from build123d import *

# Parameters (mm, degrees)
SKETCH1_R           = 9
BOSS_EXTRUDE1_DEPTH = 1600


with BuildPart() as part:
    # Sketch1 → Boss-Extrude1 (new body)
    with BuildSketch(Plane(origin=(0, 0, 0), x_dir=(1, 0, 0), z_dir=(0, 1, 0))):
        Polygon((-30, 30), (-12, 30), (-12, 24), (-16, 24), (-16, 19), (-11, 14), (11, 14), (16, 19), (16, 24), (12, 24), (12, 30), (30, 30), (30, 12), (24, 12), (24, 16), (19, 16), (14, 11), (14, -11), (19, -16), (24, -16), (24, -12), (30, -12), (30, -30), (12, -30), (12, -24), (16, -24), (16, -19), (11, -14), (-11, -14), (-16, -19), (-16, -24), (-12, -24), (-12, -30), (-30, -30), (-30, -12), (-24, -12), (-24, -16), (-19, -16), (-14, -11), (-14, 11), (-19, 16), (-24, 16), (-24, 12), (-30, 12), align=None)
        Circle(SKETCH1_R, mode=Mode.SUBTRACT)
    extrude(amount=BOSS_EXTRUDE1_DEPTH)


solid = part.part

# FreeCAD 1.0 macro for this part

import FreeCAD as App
import Part
import Sketcher

V = App.Vector
Q = App.Units.Quantity


def add_polygon(sketch, points):
    """Adds a closed chain of lines whose ends are joined by coincident constraints."""
    first, n = sketch.GeometryCount, len(points)
    for a, b in zip(points, points[1:] + points[:1]):
        sketch.addGeometry(Part.LineSegment(App.Vector(*a, 0), App.Vector(*b, 0)), False)
    for i in range(n):
        sketch.addConstraint(Sketcher.Constraint("Coincident", first + i, 2, first + (i + 1) % n, 1))

doc = App.newDocument("Part")
body = doc.addObject("PartDesign::Body", "Body")

sketch1 = doc.addObject("Sketcher::SketchObject", "Sketch")
body.addObject(sketch1)
sketch1.AttachmentSupport = (doc.XZ_Plane, [""])
sketch1.MapMode = "FlatFace"
add_polygon(sketch1, [(-12, -30), (-30, -30), (-30, -12), (-24, -12), (-24, -16), (-19, -16), (-14, -11), (-14, 11), (-19, 16), (-24, 16), (-24, 12), (-30, 12), (-30, 30), (-12, 30), (-12, 24), (-16, 24), (-16, 19), (-11, 14), (11, 14), (16, 19), (16, 24), (12, 24), (12, 30), (30, 30), (30, 12), (24, 12), (24, 16), (19, 16), (14, 11), (14, -11), (19, -16), (24, -16), (24, -12), (30, -12), (30, -30), (12, -30), (12, -24), (16, -24), (16, -19), (11, -14), (-11, -14), (-16, -19), (-16, -24), (-12, -24)])
sketch1.addGeometry(Part.Circle(V(0, 0, 0), V(0, 0, 1), 9), False)
sketch1.addConstraint([
    Sketcher.Constraint("Horizontal", 0),
    Sketcher.Constraint("Vertical", 1),
    Sketcher.Constraint("Horizontal", 2),
    Sketcher.Constraint("Vertical", 3),
    Sketcher.Constraint("Horizontal", 4),
    Sketcher.Constraint("Vertical", 6),
    Sketcher.Constraint("Horizontal", 8),
    Sketcher.Constraint("Vertical", 9),
    Sketcher.Constraint("Horizontal", 10),
    Sketcher.Constraint("Vertical", 11),
    Sketcher.Constraint("Horizontal", 12),
    Sketcher.Constraint("Vertical", 13),
    Sketcher.Constraint("Horizontal", 14),
    Sketcher.Constraint("Vertical", 15),
    Sketcher.Constraint("Horizontal", 17),
    Sketcher.Constraint("Vertical", 19),
    Sketcher.Constraint("Horizontal", 20),
    Sketcher.Constraint("Vertical", 21),
    Sketcher.Constraint("Horizontal", 22),
    Sketcher.Constraint("Vertical", 23),
    Sketcher.Constraint("Horizontal", 24),
    Sketcher.Constraint("Vertical", 25),
    Sketcher.Constraint("Horizontal", 26),
    Sketcher.Constraint("Vertical", 28),
    Sketcher.Constraint("Horizontal", 30),
    Sketcher.Constraint("Vertical", 31),
    Sketcher.Constraint("Horizontal", 32),
    Sketcher.Constraint("Vertical", 33),
    Sketcher.Constraint("Horizontal", 34),
    Sketcher.Constraint("Vertical", 35),
    Sketcher.Constraint("Horizontal", 36),
    Sketcher.Constraint("Vertical", 37),
    Sketcher.Constraint("Horizontal", 39),
    Sketcher.Constraint("Vertical", 41),
    Sketcher.Constraint("Horizontal", 42),
    Sketcher.Constraint("Vertical", 43),
    Sketcher.Constraint("Coincident", 44, 3, -1, 1),
    Sketcher.Constraint("Symmetric", 0, 2, 22, 2, -1, 1),
    Sketcher.Constraint("Symmetric", 2, 2, 24, 2, -1, 1),
    Sketcher.Constraint("Symmetric", 4, 2, 26, 2, -1, 1),
    Sketcher.Constraint("Symmetric", 5, 2, 27, 2, -1, 1),
    Sketcher.Constraint("Symmetric", 7, 2, 29, 2, -1, 1),
    Sketcher.Constraint("Symmetric", 9, 2, 31, 2, -1, 1),
    Sketcher.Constraint("Symmetric", 11, 2, 33, 2, -1, 1),
    Sketcher.Constraint("Symmetric", 13, 2, 35, 2, -1, 1),
    Sketcher.Constraint("Symmetric", 15, 2, 37, 2, -1, 1),
    Sketcher.Constraint("Symmetric", 16, 2, 38, 2, -1, 1),
    Sketcher.Constraint("Symmetric", 18, 2, 40, 2, -1, 1),
    Sketcher.Constraint("Symmetric", 20, 2, 42, 2, -1, 1),
    Sketcher.Constraint("Symmetric", 15, 2, 18, 2, -2),
    Sketcher.Constraint("Symmetric", 13, 2, 20, 2, -2),
    Sketcher.Constraint("Symmetric", 11, 2, 22, 2, -2),
    Sketcher.Constraint("Symmetric", 9, 2, 24, 2, -2),
    Sketcher.Constraint("Symmetric", 7, 2, 26, 2, -2),
    Sketcher.Constraint("Perpendicular", 5, 7),
    Sketcher.Constraint("Parallel", 7, 16),
    Sketcher.Constraint("Perpendicular", 16, 18),
    Sketcher.Constraint("Perpendicular", 27, 29),
    Sketcher.Constraint("Perpendicular", 38, 40),
    Sketcher.Constraint("Horizontal", 6, 2, 27, 2),
    Sketcher.Constraint("Equal", 34, 1),
    Sketcher.Constraint("Equal", 42, 3),
    Sketcher.Constraint("Equal", 39, 6),
    Sketcher.Constraint("Equal", 32, 13),
    Sketcher.Constraint("Equal", 30, 15),
    Sketcher.Constraint("Equal", 7, 16),
    Sketcher.Constraint("Diameter", 44, Q("18 mm")),
    Sketcher.Constraint("DistanceX", 0, 2, 0, 1, Q("18 mm")),
    Sketcher.Constraint("DistanceX", 2, 1, 2, 2, Q("6 mm")),
    Sketcher.Constraint("DistanceX", 4, 1, 4, 2, Q("5 mm")),
    Sketcher.Constraint("DistanceX", 14, 2, 14, 1, Q("4 mm")),
    Sketcher.Constraint("DistanceX", 17, 1, 17, 2, Q("22 mm")),
    Sketcher.Constraint("DistanceX", 0, 2, -1, 1, Q("30 mm")),
])
pad1 = doc.addObject("PartDesign::Pad", "Pad")
body.addObject(pad1)
pad1.Profile = sketch1
pad1.Length = 1600
pad1.Reversed = True

doc.recompute()
